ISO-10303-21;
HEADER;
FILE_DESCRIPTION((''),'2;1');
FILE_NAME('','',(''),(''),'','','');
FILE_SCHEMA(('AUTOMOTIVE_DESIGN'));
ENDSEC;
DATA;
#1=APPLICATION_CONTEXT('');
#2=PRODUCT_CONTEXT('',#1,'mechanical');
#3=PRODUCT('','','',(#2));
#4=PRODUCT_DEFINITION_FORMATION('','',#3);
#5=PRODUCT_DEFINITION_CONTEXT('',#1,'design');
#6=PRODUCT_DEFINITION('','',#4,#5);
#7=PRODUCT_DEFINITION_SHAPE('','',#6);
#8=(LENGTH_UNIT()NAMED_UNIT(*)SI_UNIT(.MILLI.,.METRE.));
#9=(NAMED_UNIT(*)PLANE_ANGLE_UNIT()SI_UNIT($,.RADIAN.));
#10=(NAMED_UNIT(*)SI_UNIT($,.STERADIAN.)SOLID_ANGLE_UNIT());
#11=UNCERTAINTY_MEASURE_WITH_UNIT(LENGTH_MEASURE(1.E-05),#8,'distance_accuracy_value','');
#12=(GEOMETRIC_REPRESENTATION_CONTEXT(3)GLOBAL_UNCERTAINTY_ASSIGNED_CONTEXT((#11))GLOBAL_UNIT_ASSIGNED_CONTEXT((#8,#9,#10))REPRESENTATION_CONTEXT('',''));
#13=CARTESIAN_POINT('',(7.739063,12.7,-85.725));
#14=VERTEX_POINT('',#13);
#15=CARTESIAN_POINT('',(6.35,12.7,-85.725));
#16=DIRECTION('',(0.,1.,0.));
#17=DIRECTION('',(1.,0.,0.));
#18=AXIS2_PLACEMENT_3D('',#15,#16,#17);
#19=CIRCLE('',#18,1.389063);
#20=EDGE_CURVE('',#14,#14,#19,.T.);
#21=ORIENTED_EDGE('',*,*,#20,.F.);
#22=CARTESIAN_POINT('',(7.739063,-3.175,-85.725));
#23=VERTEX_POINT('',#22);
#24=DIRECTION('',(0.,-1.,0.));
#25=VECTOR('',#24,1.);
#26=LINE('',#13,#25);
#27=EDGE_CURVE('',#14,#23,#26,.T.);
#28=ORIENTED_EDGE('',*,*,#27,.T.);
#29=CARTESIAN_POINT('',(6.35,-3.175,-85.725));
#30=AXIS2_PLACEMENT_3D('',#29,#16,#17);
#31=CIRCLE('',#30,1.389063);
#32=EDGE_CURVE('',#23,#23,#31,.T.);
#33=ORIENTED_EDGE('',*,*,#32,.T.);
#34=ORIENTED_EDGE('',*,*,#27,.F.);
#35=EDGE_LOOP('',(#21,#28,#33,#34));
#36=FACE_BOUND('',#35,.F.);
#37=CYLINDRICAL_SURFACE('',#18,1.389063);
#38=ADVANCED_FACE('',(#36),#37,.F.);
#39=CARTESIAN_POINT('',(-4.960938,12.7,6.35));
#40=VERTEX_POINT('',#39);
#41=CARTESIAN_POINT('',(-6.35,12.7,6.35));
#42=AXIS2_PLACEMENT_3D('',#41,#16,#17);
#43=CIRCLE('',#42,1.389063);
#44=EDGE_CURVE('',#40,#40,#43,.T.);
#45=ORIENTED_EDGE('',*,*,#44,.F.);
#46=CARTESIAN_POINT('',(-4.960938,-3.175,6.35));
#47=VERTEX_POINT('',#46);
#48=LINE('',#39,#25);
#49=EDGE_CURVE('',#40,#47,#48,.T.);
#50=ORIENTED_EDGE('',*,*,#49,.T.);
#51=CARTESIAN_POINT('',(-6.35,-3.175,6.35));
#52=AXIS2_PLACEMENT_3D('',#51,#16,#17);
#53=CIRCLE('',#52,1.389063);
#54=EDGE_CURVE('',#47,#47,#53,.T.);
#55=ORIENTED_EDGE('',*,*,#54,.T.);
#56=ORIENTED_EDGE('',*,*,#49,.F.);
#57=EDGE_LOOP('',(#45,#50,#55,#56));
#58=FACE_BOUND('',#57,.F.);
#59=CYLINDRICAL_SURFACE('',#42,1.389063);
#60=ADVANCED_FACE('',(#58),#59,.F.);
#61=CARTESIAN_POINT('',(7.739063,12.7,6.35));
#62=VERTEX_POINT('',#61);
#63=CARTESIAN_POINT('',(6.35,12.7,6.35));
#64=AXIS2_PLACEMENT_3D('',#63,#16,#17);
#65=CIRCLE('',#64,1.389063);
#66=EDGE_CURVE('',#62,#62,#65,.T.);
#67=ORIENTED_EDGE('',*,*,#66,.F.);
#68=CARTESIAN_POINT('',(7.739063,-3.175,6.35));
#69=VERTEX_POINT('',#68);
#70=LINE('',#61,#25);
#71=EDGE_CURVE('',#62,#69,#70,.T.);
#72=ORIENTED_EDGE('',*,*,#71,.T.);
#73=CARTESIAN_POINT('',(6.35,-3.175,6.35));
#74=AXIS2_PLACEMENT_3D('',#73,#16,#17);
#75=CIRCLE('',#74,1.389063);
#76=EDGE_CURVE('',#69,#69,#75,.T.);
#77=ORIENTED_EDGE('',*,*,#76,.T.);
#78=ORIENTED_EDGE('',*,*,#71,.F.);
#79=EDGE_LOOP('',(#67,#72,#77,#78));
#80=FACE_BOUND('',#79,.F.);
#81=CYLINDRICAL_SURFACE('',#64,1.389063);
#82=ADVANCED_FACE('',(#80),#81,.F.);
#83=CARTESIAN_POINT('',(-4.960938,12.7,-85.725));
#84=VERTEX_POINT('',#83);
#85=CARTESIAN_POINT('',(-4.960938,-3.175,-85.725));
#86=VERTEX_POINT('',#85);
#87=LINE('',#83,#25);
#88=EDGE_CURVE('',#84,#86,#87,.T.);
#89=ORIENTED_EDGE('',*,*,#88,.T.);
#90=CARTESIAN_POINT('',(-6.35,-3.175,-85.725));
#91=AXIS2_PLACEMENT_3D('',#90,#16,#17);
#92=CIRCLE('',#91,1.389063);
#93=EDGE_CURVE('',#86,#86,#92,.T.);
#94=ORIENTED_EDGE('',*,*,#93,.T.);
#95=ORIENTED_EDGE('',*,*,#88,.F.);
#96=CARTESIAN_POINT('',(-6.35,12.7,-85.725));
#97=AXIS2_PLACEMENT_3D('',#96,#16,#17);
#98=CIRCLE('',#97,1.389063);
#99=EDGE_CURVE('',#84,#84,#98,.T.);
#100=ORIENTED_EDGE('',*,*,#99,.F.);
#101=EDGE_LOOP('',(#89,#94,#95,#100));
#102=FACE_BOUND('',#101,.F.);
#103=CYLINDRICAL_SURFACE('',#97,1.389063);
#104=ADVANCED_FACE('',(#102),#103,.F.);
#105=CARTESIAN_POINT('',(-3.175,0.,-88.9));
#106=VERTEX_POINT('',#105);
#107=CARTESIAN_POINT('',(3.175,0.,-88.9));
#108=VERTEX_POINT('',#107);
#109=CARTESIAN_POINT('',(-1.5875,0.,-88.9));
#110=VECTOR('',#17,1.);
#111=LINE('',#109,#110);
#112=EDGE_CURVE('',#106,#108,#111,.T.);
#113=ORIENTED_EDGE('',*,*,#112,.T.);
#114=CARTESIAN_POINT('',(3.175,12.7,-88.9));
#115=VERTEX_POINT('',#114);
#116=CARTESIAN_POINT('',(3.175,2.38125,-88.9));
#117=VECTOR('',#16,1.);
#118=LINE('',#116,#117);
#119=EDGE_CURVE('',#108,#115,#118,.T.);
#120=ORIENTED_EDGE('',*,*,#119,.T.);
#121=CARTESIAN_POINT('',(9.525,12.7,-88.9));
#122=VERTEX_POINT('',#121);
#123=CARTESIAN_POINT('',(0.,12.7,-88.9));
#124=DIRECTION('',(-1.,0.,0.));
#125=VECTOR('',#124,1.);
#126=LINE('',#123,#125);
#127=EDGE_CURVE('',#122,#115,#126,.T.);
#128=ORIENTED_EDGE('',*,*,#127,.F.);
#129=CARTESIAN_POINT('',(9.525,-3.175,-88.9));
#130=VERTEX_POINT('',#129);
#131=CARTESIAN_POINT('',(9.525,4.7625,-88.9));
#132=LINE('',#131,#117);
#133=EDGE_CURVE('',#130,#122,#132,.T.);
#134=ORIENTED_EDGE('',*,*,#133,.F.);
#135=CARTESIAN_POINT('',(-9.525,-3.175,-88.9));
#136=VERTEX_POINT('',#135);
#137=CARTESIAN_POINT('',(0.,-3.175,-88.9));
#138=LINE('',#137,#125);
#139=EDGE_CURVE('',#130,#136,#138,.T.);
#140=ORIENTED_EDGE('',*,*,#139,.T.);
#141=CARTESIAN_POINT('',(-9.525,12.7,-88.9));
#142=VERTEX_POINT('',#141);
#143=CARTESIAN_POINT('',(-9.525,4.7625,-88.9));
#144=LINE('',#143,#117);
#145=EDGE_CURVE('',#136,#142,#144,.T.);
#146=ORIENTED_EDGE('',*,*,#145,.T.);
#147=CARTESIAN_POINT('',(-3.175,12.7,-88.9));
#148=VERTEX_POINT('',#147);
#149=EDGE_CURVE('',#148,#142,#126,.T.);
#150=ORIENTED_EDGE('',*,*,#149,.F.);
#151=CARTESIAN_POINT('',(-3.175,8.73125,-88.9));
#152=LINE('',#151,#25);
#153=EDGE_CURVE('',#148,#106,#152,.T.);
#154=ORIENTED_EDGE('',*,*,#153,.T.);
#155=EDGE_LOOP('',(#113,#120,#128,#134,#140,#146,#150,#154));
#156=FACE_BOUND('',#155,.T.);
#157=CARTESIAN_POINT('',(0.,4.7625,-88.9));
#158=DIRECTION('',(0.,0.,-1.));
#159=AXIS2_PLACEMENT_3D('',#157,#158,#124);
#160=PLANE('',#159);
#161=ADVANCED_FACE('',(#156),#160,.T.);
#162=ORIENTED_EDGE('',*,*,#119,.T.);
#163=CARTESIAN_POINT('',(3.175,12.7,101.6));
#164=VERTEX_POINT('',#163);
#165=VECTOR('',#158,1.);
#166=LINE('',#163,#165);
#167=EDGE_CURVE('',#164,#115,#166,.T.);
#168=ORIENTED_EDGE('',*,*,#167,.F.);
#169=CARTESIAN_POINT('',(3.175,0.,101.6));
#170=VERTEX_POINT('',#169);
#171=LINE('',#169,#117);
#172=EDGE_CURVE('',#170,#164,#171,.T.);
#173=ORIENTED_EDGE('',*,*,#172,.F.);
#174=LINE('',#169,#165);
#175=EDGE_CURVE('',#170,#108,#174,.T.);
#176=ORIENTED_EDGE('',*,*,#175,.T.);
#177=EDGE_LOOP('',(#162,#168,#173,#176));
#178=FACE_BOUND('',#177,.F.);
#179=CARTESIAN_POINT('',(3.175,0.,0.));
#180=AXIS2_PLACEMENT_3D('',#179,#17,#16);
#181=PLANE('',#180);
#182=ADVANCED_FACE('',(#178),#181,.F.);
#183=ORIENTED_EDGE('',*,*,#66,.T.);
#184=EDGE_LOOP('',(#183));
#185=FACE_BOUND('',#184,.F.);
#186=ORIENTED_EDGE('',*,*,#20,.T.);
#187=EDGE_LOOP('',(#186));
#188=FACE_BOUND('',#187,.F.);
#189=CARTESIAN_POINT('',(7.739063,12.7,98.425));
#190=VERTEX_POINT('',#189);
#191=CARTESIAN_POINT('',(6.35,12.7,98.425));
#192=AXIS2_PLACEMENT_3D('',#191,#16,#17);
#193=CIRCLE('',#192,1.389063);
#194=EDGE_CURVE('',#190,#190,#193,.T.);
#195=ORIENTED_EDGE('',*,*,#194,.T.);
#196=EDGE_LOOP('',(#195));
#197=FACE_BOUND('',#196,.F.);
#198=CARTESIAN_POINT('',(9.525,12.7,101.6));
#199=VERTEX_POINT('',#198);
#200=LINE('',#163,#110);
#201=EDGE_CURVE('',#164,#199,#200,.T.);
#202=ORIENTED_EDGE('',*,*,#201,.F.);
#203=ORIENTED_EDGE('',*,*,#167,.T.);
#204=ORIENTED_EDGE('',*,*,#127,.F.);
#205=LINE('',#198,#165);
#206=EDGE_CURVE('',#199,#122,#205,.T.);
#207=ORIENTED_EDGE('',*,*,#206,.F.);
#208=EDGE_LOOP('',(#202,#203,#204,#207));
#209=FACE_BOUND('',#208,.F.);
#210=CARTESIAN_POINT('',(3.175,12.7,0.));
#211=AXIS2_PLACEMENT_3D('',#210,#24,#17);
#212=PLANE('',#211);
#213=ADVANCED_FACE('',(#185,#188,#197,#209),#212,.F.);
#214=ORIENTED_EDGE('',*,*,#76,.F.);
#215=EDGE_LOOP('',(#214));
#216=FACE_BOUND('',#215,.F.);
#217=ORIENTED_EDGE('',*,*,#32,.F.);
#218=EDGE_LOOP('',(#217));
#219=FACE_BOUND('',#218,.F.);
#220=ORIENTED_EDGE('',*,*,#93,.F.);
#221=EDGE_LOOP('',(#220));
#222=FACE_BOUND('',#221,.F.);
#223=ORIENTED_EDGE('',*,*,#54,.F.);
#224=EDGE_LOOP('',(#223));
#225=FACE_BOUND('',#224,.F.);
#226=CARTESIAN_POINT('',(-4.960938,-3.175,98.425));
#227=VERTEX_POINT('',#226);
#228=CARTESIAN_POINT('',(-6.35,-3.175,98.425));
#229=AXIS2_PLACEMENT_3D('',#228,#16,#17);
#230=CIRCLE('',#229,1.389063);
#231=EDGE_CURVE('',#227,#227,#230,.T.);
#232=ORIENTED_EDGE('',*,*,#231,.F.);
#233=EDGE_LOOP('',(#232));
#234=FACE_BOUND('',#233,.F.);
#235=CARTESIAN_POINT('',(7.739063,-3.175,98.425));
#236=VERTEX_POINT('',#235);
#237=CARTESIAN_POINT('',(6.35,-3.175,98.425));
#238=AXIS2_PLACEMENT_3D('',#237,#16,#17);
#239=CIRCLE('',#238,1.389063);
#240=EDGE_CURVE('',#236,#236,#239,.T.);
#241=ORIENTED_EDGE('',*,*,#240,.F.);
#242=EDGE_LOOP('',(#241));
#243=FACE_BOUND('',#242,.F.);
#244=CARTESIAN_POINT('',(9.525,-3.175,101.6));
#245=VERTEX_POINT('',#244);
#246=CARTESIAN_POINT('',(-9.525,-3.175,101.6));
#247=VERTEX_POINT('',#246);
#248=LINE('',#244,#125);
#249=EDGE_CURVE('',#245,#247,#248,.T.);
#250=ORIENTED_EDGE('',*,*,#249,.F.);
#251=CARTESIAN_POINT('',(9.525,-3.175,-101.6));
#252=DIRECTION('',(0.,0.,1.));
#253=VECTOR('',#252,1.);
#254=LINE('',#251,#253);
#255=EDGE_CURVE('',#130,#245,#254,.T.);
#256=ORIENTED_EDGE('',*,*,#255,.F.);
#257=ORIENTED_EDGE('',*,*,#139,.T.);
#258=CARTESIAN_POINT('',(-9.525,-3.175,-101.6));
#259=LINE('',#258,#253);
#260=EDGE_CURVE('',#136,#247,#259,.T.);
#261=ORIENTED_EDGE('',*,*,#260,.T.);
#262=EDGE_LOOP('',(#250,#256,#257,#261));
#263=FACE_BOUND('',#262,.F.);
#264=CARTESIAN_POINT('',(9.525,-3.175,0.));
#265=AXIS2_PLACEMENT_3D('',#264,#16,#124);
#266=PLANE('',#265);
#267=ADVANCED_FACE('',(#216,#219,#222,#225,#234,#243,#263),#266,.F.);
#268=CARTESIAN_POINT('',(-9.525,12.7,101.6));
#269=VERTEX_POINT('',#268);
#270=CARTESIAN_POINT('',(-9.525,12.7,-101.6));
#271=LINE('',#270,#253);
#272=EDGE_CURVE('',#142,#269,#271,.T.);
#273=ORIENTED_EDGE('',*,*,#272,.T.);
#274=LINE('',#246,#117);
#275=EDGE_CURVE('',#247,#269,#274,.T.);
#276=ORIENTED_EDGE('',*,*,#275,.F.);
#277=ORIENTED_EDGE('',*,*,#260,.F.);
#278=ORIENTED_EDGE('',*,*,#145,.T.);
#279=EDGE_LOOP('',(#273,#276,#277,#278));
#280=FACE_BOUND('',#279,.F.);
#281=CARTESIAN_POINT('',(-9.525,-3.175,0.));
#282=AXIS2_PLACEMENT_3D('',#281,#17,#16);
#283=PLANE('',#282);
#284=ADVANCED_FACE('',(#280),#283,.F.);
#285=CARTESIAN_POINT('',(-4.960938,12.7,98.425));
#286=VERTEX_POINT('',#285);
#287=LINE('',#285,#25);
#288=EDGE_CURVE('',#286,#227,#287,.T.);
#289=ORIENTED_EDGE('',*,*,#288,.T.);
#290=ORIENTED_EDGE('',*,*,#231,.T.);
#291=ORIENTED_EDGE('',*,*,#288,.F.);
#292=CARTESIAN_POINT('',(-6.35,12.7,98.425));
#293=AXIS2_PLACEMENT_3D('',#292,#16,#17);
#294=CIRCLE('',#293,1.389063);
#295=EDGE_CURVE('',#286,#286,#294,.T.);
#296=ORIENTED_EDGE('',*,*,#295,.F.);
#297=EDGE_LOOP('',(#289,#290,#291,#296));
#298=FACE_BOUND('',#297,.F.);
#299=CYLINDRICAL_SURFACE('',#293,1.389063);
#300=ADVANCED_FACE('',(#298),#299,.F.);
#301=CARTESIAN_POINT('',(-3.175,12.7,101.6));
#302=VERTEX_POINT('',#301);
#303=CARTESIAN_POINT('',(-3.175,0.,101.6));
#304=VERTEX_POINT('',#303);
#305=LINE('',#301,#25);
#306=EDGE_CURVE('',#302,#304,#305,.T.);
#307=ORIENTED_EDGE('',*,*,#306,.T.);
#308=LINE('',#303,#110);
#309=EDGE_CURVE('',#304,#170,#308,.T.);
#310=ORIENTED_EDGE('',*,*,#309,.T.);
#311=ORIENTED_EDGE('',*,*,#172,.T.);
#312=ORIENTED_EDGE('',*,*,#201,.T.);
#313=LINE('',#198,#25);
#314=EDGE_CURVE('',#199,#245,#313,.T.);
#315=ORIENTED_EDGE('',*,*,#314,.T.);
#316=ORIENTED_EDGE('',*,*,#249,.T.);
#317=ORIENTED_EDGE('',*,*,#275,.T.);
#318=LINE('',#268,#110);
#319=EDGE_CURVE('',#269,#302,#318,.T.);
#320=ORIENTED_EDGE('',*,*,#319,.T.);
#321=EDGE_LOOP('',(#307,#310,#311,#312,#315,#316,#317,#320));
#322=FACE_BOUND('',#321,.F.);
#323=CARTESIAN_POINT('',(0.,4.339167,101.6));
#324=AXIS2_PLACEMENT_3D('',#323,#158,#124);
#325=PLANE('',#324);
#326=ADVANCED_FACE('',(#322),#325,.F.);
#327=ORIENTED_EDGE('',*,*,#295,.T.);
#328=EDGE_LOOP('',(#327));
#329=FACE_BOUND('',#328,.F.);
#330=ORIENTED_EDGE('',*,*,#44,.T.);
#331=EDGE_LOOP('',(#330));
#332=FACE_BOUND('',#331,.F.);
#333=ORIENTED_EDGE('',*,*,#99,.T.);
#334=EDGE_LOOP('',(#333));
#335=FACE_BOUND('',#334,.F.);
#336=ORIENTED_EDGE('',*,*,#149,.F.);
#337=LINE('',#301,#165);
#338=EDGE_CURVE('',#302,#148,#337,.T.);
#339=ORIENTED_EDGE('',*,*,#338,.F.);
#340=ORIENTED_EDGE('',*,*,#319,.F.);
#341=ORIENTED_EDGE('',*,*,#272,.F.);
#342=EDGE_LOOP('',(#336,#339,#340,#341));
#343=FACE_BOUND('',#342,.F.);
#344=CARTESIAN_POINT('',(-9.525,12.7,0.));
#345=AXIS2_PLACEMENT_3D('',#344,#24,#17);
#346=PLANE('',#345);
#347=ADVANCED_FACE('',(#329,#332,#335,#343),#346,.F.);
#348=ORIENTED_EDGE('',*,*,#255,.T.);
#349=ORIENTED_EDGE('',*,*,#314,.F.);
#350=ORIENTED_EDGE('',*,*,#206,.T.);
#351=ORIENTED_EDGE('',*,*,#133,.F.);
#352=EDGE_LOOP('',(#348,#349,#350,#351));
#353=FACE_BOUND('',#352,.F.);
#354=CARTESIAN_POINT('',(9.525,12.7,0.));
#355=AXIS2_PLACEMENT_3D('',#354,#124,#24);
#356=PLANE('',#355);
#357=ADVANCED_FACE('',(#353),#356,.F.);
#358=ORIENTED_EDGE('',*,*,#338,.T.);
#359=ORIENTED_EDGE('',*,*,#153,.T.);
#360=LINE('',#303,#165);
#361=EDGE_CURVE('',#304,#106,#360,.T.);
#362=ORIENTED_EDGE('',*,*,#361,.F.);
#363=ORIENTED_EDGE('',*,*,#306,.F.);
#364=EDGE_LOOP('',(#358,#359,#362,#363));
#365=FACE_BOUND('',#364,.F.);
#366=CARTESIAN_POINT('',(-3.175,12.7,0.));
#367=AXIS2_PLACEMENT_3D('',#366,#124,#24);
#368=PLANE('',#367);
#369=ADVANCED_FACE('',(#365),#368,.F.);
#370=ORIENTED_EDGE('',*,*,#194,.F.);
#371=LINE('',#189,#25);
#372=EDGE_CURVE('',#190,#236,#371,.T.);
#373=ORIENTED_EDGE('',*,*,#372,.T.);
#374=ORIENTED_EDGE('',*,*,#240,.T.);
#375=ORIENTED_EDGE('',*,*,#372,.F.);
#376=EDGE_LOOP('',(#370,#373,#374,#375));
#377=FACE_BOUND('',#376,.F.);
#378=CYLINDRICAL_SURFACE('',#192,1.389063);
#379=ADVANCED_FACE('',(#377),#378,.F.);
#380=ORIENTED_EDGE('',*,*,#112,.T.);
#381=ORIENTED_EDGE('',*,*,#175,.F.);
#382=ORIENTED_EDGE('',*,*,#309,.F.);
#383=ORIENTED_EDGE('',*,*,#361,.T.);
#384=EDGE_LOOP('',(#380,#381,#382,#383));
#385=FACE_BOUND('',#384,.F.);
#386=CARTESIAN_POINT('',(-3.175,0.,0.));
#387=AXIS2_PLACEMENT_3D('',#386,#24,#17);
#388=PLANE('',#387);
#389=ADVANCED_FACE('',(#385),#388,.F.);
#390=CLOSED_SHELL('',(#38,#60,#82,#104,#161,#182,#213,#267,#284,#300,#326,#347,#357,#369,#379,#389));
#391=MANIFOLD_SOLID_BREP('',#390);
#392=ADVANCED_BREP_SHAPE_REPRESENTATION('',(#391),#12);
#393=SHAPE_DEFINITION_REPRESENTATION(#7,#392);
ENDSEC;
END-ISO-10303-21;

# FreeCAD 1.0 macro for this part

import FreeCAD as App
import Part
import Sketcher

V = App.Vector
Q = App.Units.Quantity


def add_polygon(sketch, points):
    """Adds a closed chain of lines whose ends are joined by coincident constraints."""
    first, n = sketch.GeometryCount, len(points)
    for a, b in zip(points, points[1:] + points[:1]):
        sketch.addGeometry(Part.LineSegment(App.Vector(*a, 0), App.Vector(*b, 0)), False)
    for i in range(n):
        sketch.addConstraint(Sketcher.Constraint("Coincident", first + i, 2, first + (i + 1) % n, 1))

doc = App.newDocument("Part")
params = doc.addObject("Spreadsheet::Sheet", "Params")
for row, (alias, value) in enumerate([
    ("sketch1_height", "0.5 in"),
    ("sketch1_width", "0.25 in"),
    ("sketch1_height2", "0.625 in"),
    ("pad1_length", "8 in"),
    ("sketch2_width", "0.75 in"),
    ("sketch2_height", "0.625 in"),
    ("pocket1_length", "0.25 in"),
    ("sketch3_width", "0.75 in"),
    ("sketch3_height", "0.625 in"),
    ("pocket2_length", "0.25 in"),
    ("sketch4_diameter", "0.109375 in"),
], start=1):
    params.set(f"A{row}", alias)
    params.set(f"B{row}", "=" + value)
    params.setAlias(f"B{row}", alias)

body = doc.addObject("PartDesign::Body", "Body")

# Sketch on XY plane
sketch1 = body.newObject("Sketcher::SketchObject", "Sketch")
sketch1.AttachmentSupport = (doc.getObject("XY_Plane"), [""])
sketch1.MapMode = "FlatFace"
add_polygon(sketch1, [(-3, 13), (-10, 13), (-10, -3), (10, -3), (10, 13), (3, 13), (3, 0), (-3, 0)])  # lines 0-7
sketch1.addConstraint([
    Sketcher.Constraint("Horizontal", 0),
    Sketcher.Constraint("Vertical", 1),
    Sketcher.Constraint("Horizontal", 2),
    Sketcher.Constraint("Vertical", 3),
    Sketcher.Constraint("Horizontal", 4),
    Sketcher.Constraint("Vertical", 5),
    Sketcher.Constraint("Horizontal", 6),
    Sketcher.Constraint("Vertical", 7),
    Sketcher.Constraint("Symmetric", 5, 2, 6, 2, -1, 1),
    Sketcher.Constraint("Symmetric", 0, 2, 3, 2, -2),
    Sketcher.Constraint("Equal", 4, 6),
    Sketcher.Constraint("DistanceY", 5, 2, 5, 1, Q("0.5 in")),
    Sketcher.Constraint("DistanceX", 0, 2, 0, 1, Q("0.25 in")),
    Sketcher.Constraint("DistanceY", 1, 2, 1, 1, Q("0.625 in")),
])
sketch1.setExpression("Constraints[19]", "Params.sketch1_height")
sketch1.setExpression("Constraints[20]", "Params.sketch1_width")
sketch1.setExpression("Constraints[21]", "Params.sketch1_height2")
pad1 = body.newObject("PartDesign::Pad", "Pad")
pad1.Profile = sketch1
pad1.setExpression("Length", "Params.pad1_length")
pad1.Midplane = True

# Sketch on XY plane
sketch2 = body.newObject("Sketcher::SketchObject", "Sketch001")
sketch2.AttachmentSupport = (doc.getObject("XY_Plane"), [""])
sketch2.MapMode = "FlatFace"
sketch2.AttachmentOffset = App.Placement(V(0, 0, -4 * 25.4), App.Rotation())
add_polygon(sketch2, [(-10, 13), (-10, -3), (10, -3), (10, 13)])  # lines 0-3
sketch2.addConstraint([
    Sketcher.Constraint("Vertical", 0),
    Sketcher.Constraint("Horizontal", 1),
    Sketcher.Constraint("Vertical", 2),
    Sketcher.Constraint("Horizontal", 3),
    Sketcher.Constraint("DistanceX", 1, 1, 1, 2, Q("0.75 in")),
    Sketcher.Constraint("DistanceY", -1, 1, 2, 2, Q("0.5 in")),
    Sketcher.Constraint("DistanceY", 0, 2, 0, 1, Q("0.625 in")),
    Sketcher.Constraint("DistanceX", 0, 2, -1, 1, Q("0.375 in")),
])
sketch2.setExpression("Constraints[8]", "Params.sketch2_width")
sketch2.setExpression("Constraints[10]", "Params.sketch2_height")
pocket1 = body.newObject("PartDesign::Pocket", "Pocket")
pocket1.Profile = sketch2
pocket1.setExpression("Length", "Params.pocket1_length")
pocket1.Reversed = True

# Sketch on XY plane
sketch3 = body.newObject("Sketcher::SketchObject", "Sketch002")
sketch3.AttachmentSupport = (doc.getObject("XY_Plane"), [""])
sketch3.MapMode = "FlatFace"
sketch3.AttachmentOffset = App.Placement(V(0, 0, -3.75 * 25.4), App.Rotation())
add_polygon(sketch3, [(10, 13), (10, -3), (-10, -3), (-10, 13)])  # lines 0-3
sketch3.addConstraint([
    Sketcher.Constraint("Vertical", 0),
    Sketcher.Constraint("Horizontal", 1),
    Sketcher.Constraint("Vertical", 2),
    Sketcher.Constraint("Horizontal", 3),
    Sketcher.Constraint("DistanceX", 1, 2, 1, 1, Q("0.75 in")),
    Sketcher.Constraint("DistanceY", -1, 1, 2, 2, Q("0.5 in")),
    Sketcher.Constraint("DistanceY", 0, 2, 0, 1, Q("0.625 in")),
    Sketcher.Constraint("DistanceX", -1, 1, 0, 2, Q("0.375 in")),
])
sketch3.setExpression("Constraints[8]", "Params.sketch3_width")
sketch3.setExpression("Constraints[10]", "Params.sketch3_height")
pocket2 = body.newObject("PartDesign::Pocket", "Pocket001")
pocket2.Profile = sketch3
pocket2.setExpression("Length", "Params.pocket2_length")
pocket2.Reversed = True

# Sketch on XZ plane
sketch4 = body.newObject("Sketcher::SketchObject", "Sketch003")
sketch4.AttachmentSupport = (doc.getObject("XZ_Plane"), [""])
sketch4.MapMode = "FlatFace"
sketch4.AttachmentOffset = App.Placement(V(0, 0, -0.5 * 25.4), App.Rotation())
sketch4.addGeometry([
    Part.Circle(V(6.3, -85.7, 0), V(0, 0, 1), 1.4),  # 0
    Part.Circle(V(-6.3, -85.7, 0), V(0, 0, 1), 1.4),  # 1
    Part.Circle(V(6.3, 6.3, 0), V(0, 0, 1), 1.4),  # 2
    Part.Circle(V(-6.3, 6.3, 0), V(0, 0, 1), 1.4),  # 3
    Part.Circle(V(6.3, 98.4, 0), V(0, 0, 1), 1.4),  # 4
    Part.Circle(V(-6.3, 98.4, 0), V(0, 0, 1), 1.4),  # 5
], False)
sketch4.addConstraint([
    Sketcher.Constraint("Equal", 0, 1),
    Sketcher.Constraint("Equal", 1, 2),
    Sketcher.Constraint("Equal", 2, 3),
    Sketcher.Constraint("Equal", 3, 4),
    Sketcher.Constraint("Equal", 4, 5),
    Sketcher.Constraint("Symmetric", 0, 3, 1, 3, -2),
    Sketcher.Constraint("Symmetric", 2, 3, 3, 3, -2),
    Sketcher.Constraint("Symmetric", 4, 3, 5, 3, -2),
    Sketcher.Constraint("Vertical", 0, 3, 2, 3),
    Sketcher.Constraint("Vertical", 2, 3, 4, 3),
    Sketcher.Constraint("Diameter", 0, Q("0.109375 in")),
    Sketcher.Constraint("DistanceX", 1, 3, 0, 3, Q("0.5 in")),
    Sketcher.Constraint("DistanceY", -1, 1, 2, 3, Q("0.25 in")),
    Sketcher.Constraint("DistanceY", 0, 3, 4, 3, Q("7.25 in")),
    Sketcher.Constraint("DistanceY", 0, 3, -1, 1, Q("3.375 in")),
])
sketch4.setExpression("Constraints[10]", "Params.sketch4_diameter")
pocket3 = body.newObject("PartDesign::Pocket", "Pocket002")
pocket3.Profile = sketch4
pocket3.Type = "ThroughAll"
pocket3.Midplane = True

doc.recompute()
